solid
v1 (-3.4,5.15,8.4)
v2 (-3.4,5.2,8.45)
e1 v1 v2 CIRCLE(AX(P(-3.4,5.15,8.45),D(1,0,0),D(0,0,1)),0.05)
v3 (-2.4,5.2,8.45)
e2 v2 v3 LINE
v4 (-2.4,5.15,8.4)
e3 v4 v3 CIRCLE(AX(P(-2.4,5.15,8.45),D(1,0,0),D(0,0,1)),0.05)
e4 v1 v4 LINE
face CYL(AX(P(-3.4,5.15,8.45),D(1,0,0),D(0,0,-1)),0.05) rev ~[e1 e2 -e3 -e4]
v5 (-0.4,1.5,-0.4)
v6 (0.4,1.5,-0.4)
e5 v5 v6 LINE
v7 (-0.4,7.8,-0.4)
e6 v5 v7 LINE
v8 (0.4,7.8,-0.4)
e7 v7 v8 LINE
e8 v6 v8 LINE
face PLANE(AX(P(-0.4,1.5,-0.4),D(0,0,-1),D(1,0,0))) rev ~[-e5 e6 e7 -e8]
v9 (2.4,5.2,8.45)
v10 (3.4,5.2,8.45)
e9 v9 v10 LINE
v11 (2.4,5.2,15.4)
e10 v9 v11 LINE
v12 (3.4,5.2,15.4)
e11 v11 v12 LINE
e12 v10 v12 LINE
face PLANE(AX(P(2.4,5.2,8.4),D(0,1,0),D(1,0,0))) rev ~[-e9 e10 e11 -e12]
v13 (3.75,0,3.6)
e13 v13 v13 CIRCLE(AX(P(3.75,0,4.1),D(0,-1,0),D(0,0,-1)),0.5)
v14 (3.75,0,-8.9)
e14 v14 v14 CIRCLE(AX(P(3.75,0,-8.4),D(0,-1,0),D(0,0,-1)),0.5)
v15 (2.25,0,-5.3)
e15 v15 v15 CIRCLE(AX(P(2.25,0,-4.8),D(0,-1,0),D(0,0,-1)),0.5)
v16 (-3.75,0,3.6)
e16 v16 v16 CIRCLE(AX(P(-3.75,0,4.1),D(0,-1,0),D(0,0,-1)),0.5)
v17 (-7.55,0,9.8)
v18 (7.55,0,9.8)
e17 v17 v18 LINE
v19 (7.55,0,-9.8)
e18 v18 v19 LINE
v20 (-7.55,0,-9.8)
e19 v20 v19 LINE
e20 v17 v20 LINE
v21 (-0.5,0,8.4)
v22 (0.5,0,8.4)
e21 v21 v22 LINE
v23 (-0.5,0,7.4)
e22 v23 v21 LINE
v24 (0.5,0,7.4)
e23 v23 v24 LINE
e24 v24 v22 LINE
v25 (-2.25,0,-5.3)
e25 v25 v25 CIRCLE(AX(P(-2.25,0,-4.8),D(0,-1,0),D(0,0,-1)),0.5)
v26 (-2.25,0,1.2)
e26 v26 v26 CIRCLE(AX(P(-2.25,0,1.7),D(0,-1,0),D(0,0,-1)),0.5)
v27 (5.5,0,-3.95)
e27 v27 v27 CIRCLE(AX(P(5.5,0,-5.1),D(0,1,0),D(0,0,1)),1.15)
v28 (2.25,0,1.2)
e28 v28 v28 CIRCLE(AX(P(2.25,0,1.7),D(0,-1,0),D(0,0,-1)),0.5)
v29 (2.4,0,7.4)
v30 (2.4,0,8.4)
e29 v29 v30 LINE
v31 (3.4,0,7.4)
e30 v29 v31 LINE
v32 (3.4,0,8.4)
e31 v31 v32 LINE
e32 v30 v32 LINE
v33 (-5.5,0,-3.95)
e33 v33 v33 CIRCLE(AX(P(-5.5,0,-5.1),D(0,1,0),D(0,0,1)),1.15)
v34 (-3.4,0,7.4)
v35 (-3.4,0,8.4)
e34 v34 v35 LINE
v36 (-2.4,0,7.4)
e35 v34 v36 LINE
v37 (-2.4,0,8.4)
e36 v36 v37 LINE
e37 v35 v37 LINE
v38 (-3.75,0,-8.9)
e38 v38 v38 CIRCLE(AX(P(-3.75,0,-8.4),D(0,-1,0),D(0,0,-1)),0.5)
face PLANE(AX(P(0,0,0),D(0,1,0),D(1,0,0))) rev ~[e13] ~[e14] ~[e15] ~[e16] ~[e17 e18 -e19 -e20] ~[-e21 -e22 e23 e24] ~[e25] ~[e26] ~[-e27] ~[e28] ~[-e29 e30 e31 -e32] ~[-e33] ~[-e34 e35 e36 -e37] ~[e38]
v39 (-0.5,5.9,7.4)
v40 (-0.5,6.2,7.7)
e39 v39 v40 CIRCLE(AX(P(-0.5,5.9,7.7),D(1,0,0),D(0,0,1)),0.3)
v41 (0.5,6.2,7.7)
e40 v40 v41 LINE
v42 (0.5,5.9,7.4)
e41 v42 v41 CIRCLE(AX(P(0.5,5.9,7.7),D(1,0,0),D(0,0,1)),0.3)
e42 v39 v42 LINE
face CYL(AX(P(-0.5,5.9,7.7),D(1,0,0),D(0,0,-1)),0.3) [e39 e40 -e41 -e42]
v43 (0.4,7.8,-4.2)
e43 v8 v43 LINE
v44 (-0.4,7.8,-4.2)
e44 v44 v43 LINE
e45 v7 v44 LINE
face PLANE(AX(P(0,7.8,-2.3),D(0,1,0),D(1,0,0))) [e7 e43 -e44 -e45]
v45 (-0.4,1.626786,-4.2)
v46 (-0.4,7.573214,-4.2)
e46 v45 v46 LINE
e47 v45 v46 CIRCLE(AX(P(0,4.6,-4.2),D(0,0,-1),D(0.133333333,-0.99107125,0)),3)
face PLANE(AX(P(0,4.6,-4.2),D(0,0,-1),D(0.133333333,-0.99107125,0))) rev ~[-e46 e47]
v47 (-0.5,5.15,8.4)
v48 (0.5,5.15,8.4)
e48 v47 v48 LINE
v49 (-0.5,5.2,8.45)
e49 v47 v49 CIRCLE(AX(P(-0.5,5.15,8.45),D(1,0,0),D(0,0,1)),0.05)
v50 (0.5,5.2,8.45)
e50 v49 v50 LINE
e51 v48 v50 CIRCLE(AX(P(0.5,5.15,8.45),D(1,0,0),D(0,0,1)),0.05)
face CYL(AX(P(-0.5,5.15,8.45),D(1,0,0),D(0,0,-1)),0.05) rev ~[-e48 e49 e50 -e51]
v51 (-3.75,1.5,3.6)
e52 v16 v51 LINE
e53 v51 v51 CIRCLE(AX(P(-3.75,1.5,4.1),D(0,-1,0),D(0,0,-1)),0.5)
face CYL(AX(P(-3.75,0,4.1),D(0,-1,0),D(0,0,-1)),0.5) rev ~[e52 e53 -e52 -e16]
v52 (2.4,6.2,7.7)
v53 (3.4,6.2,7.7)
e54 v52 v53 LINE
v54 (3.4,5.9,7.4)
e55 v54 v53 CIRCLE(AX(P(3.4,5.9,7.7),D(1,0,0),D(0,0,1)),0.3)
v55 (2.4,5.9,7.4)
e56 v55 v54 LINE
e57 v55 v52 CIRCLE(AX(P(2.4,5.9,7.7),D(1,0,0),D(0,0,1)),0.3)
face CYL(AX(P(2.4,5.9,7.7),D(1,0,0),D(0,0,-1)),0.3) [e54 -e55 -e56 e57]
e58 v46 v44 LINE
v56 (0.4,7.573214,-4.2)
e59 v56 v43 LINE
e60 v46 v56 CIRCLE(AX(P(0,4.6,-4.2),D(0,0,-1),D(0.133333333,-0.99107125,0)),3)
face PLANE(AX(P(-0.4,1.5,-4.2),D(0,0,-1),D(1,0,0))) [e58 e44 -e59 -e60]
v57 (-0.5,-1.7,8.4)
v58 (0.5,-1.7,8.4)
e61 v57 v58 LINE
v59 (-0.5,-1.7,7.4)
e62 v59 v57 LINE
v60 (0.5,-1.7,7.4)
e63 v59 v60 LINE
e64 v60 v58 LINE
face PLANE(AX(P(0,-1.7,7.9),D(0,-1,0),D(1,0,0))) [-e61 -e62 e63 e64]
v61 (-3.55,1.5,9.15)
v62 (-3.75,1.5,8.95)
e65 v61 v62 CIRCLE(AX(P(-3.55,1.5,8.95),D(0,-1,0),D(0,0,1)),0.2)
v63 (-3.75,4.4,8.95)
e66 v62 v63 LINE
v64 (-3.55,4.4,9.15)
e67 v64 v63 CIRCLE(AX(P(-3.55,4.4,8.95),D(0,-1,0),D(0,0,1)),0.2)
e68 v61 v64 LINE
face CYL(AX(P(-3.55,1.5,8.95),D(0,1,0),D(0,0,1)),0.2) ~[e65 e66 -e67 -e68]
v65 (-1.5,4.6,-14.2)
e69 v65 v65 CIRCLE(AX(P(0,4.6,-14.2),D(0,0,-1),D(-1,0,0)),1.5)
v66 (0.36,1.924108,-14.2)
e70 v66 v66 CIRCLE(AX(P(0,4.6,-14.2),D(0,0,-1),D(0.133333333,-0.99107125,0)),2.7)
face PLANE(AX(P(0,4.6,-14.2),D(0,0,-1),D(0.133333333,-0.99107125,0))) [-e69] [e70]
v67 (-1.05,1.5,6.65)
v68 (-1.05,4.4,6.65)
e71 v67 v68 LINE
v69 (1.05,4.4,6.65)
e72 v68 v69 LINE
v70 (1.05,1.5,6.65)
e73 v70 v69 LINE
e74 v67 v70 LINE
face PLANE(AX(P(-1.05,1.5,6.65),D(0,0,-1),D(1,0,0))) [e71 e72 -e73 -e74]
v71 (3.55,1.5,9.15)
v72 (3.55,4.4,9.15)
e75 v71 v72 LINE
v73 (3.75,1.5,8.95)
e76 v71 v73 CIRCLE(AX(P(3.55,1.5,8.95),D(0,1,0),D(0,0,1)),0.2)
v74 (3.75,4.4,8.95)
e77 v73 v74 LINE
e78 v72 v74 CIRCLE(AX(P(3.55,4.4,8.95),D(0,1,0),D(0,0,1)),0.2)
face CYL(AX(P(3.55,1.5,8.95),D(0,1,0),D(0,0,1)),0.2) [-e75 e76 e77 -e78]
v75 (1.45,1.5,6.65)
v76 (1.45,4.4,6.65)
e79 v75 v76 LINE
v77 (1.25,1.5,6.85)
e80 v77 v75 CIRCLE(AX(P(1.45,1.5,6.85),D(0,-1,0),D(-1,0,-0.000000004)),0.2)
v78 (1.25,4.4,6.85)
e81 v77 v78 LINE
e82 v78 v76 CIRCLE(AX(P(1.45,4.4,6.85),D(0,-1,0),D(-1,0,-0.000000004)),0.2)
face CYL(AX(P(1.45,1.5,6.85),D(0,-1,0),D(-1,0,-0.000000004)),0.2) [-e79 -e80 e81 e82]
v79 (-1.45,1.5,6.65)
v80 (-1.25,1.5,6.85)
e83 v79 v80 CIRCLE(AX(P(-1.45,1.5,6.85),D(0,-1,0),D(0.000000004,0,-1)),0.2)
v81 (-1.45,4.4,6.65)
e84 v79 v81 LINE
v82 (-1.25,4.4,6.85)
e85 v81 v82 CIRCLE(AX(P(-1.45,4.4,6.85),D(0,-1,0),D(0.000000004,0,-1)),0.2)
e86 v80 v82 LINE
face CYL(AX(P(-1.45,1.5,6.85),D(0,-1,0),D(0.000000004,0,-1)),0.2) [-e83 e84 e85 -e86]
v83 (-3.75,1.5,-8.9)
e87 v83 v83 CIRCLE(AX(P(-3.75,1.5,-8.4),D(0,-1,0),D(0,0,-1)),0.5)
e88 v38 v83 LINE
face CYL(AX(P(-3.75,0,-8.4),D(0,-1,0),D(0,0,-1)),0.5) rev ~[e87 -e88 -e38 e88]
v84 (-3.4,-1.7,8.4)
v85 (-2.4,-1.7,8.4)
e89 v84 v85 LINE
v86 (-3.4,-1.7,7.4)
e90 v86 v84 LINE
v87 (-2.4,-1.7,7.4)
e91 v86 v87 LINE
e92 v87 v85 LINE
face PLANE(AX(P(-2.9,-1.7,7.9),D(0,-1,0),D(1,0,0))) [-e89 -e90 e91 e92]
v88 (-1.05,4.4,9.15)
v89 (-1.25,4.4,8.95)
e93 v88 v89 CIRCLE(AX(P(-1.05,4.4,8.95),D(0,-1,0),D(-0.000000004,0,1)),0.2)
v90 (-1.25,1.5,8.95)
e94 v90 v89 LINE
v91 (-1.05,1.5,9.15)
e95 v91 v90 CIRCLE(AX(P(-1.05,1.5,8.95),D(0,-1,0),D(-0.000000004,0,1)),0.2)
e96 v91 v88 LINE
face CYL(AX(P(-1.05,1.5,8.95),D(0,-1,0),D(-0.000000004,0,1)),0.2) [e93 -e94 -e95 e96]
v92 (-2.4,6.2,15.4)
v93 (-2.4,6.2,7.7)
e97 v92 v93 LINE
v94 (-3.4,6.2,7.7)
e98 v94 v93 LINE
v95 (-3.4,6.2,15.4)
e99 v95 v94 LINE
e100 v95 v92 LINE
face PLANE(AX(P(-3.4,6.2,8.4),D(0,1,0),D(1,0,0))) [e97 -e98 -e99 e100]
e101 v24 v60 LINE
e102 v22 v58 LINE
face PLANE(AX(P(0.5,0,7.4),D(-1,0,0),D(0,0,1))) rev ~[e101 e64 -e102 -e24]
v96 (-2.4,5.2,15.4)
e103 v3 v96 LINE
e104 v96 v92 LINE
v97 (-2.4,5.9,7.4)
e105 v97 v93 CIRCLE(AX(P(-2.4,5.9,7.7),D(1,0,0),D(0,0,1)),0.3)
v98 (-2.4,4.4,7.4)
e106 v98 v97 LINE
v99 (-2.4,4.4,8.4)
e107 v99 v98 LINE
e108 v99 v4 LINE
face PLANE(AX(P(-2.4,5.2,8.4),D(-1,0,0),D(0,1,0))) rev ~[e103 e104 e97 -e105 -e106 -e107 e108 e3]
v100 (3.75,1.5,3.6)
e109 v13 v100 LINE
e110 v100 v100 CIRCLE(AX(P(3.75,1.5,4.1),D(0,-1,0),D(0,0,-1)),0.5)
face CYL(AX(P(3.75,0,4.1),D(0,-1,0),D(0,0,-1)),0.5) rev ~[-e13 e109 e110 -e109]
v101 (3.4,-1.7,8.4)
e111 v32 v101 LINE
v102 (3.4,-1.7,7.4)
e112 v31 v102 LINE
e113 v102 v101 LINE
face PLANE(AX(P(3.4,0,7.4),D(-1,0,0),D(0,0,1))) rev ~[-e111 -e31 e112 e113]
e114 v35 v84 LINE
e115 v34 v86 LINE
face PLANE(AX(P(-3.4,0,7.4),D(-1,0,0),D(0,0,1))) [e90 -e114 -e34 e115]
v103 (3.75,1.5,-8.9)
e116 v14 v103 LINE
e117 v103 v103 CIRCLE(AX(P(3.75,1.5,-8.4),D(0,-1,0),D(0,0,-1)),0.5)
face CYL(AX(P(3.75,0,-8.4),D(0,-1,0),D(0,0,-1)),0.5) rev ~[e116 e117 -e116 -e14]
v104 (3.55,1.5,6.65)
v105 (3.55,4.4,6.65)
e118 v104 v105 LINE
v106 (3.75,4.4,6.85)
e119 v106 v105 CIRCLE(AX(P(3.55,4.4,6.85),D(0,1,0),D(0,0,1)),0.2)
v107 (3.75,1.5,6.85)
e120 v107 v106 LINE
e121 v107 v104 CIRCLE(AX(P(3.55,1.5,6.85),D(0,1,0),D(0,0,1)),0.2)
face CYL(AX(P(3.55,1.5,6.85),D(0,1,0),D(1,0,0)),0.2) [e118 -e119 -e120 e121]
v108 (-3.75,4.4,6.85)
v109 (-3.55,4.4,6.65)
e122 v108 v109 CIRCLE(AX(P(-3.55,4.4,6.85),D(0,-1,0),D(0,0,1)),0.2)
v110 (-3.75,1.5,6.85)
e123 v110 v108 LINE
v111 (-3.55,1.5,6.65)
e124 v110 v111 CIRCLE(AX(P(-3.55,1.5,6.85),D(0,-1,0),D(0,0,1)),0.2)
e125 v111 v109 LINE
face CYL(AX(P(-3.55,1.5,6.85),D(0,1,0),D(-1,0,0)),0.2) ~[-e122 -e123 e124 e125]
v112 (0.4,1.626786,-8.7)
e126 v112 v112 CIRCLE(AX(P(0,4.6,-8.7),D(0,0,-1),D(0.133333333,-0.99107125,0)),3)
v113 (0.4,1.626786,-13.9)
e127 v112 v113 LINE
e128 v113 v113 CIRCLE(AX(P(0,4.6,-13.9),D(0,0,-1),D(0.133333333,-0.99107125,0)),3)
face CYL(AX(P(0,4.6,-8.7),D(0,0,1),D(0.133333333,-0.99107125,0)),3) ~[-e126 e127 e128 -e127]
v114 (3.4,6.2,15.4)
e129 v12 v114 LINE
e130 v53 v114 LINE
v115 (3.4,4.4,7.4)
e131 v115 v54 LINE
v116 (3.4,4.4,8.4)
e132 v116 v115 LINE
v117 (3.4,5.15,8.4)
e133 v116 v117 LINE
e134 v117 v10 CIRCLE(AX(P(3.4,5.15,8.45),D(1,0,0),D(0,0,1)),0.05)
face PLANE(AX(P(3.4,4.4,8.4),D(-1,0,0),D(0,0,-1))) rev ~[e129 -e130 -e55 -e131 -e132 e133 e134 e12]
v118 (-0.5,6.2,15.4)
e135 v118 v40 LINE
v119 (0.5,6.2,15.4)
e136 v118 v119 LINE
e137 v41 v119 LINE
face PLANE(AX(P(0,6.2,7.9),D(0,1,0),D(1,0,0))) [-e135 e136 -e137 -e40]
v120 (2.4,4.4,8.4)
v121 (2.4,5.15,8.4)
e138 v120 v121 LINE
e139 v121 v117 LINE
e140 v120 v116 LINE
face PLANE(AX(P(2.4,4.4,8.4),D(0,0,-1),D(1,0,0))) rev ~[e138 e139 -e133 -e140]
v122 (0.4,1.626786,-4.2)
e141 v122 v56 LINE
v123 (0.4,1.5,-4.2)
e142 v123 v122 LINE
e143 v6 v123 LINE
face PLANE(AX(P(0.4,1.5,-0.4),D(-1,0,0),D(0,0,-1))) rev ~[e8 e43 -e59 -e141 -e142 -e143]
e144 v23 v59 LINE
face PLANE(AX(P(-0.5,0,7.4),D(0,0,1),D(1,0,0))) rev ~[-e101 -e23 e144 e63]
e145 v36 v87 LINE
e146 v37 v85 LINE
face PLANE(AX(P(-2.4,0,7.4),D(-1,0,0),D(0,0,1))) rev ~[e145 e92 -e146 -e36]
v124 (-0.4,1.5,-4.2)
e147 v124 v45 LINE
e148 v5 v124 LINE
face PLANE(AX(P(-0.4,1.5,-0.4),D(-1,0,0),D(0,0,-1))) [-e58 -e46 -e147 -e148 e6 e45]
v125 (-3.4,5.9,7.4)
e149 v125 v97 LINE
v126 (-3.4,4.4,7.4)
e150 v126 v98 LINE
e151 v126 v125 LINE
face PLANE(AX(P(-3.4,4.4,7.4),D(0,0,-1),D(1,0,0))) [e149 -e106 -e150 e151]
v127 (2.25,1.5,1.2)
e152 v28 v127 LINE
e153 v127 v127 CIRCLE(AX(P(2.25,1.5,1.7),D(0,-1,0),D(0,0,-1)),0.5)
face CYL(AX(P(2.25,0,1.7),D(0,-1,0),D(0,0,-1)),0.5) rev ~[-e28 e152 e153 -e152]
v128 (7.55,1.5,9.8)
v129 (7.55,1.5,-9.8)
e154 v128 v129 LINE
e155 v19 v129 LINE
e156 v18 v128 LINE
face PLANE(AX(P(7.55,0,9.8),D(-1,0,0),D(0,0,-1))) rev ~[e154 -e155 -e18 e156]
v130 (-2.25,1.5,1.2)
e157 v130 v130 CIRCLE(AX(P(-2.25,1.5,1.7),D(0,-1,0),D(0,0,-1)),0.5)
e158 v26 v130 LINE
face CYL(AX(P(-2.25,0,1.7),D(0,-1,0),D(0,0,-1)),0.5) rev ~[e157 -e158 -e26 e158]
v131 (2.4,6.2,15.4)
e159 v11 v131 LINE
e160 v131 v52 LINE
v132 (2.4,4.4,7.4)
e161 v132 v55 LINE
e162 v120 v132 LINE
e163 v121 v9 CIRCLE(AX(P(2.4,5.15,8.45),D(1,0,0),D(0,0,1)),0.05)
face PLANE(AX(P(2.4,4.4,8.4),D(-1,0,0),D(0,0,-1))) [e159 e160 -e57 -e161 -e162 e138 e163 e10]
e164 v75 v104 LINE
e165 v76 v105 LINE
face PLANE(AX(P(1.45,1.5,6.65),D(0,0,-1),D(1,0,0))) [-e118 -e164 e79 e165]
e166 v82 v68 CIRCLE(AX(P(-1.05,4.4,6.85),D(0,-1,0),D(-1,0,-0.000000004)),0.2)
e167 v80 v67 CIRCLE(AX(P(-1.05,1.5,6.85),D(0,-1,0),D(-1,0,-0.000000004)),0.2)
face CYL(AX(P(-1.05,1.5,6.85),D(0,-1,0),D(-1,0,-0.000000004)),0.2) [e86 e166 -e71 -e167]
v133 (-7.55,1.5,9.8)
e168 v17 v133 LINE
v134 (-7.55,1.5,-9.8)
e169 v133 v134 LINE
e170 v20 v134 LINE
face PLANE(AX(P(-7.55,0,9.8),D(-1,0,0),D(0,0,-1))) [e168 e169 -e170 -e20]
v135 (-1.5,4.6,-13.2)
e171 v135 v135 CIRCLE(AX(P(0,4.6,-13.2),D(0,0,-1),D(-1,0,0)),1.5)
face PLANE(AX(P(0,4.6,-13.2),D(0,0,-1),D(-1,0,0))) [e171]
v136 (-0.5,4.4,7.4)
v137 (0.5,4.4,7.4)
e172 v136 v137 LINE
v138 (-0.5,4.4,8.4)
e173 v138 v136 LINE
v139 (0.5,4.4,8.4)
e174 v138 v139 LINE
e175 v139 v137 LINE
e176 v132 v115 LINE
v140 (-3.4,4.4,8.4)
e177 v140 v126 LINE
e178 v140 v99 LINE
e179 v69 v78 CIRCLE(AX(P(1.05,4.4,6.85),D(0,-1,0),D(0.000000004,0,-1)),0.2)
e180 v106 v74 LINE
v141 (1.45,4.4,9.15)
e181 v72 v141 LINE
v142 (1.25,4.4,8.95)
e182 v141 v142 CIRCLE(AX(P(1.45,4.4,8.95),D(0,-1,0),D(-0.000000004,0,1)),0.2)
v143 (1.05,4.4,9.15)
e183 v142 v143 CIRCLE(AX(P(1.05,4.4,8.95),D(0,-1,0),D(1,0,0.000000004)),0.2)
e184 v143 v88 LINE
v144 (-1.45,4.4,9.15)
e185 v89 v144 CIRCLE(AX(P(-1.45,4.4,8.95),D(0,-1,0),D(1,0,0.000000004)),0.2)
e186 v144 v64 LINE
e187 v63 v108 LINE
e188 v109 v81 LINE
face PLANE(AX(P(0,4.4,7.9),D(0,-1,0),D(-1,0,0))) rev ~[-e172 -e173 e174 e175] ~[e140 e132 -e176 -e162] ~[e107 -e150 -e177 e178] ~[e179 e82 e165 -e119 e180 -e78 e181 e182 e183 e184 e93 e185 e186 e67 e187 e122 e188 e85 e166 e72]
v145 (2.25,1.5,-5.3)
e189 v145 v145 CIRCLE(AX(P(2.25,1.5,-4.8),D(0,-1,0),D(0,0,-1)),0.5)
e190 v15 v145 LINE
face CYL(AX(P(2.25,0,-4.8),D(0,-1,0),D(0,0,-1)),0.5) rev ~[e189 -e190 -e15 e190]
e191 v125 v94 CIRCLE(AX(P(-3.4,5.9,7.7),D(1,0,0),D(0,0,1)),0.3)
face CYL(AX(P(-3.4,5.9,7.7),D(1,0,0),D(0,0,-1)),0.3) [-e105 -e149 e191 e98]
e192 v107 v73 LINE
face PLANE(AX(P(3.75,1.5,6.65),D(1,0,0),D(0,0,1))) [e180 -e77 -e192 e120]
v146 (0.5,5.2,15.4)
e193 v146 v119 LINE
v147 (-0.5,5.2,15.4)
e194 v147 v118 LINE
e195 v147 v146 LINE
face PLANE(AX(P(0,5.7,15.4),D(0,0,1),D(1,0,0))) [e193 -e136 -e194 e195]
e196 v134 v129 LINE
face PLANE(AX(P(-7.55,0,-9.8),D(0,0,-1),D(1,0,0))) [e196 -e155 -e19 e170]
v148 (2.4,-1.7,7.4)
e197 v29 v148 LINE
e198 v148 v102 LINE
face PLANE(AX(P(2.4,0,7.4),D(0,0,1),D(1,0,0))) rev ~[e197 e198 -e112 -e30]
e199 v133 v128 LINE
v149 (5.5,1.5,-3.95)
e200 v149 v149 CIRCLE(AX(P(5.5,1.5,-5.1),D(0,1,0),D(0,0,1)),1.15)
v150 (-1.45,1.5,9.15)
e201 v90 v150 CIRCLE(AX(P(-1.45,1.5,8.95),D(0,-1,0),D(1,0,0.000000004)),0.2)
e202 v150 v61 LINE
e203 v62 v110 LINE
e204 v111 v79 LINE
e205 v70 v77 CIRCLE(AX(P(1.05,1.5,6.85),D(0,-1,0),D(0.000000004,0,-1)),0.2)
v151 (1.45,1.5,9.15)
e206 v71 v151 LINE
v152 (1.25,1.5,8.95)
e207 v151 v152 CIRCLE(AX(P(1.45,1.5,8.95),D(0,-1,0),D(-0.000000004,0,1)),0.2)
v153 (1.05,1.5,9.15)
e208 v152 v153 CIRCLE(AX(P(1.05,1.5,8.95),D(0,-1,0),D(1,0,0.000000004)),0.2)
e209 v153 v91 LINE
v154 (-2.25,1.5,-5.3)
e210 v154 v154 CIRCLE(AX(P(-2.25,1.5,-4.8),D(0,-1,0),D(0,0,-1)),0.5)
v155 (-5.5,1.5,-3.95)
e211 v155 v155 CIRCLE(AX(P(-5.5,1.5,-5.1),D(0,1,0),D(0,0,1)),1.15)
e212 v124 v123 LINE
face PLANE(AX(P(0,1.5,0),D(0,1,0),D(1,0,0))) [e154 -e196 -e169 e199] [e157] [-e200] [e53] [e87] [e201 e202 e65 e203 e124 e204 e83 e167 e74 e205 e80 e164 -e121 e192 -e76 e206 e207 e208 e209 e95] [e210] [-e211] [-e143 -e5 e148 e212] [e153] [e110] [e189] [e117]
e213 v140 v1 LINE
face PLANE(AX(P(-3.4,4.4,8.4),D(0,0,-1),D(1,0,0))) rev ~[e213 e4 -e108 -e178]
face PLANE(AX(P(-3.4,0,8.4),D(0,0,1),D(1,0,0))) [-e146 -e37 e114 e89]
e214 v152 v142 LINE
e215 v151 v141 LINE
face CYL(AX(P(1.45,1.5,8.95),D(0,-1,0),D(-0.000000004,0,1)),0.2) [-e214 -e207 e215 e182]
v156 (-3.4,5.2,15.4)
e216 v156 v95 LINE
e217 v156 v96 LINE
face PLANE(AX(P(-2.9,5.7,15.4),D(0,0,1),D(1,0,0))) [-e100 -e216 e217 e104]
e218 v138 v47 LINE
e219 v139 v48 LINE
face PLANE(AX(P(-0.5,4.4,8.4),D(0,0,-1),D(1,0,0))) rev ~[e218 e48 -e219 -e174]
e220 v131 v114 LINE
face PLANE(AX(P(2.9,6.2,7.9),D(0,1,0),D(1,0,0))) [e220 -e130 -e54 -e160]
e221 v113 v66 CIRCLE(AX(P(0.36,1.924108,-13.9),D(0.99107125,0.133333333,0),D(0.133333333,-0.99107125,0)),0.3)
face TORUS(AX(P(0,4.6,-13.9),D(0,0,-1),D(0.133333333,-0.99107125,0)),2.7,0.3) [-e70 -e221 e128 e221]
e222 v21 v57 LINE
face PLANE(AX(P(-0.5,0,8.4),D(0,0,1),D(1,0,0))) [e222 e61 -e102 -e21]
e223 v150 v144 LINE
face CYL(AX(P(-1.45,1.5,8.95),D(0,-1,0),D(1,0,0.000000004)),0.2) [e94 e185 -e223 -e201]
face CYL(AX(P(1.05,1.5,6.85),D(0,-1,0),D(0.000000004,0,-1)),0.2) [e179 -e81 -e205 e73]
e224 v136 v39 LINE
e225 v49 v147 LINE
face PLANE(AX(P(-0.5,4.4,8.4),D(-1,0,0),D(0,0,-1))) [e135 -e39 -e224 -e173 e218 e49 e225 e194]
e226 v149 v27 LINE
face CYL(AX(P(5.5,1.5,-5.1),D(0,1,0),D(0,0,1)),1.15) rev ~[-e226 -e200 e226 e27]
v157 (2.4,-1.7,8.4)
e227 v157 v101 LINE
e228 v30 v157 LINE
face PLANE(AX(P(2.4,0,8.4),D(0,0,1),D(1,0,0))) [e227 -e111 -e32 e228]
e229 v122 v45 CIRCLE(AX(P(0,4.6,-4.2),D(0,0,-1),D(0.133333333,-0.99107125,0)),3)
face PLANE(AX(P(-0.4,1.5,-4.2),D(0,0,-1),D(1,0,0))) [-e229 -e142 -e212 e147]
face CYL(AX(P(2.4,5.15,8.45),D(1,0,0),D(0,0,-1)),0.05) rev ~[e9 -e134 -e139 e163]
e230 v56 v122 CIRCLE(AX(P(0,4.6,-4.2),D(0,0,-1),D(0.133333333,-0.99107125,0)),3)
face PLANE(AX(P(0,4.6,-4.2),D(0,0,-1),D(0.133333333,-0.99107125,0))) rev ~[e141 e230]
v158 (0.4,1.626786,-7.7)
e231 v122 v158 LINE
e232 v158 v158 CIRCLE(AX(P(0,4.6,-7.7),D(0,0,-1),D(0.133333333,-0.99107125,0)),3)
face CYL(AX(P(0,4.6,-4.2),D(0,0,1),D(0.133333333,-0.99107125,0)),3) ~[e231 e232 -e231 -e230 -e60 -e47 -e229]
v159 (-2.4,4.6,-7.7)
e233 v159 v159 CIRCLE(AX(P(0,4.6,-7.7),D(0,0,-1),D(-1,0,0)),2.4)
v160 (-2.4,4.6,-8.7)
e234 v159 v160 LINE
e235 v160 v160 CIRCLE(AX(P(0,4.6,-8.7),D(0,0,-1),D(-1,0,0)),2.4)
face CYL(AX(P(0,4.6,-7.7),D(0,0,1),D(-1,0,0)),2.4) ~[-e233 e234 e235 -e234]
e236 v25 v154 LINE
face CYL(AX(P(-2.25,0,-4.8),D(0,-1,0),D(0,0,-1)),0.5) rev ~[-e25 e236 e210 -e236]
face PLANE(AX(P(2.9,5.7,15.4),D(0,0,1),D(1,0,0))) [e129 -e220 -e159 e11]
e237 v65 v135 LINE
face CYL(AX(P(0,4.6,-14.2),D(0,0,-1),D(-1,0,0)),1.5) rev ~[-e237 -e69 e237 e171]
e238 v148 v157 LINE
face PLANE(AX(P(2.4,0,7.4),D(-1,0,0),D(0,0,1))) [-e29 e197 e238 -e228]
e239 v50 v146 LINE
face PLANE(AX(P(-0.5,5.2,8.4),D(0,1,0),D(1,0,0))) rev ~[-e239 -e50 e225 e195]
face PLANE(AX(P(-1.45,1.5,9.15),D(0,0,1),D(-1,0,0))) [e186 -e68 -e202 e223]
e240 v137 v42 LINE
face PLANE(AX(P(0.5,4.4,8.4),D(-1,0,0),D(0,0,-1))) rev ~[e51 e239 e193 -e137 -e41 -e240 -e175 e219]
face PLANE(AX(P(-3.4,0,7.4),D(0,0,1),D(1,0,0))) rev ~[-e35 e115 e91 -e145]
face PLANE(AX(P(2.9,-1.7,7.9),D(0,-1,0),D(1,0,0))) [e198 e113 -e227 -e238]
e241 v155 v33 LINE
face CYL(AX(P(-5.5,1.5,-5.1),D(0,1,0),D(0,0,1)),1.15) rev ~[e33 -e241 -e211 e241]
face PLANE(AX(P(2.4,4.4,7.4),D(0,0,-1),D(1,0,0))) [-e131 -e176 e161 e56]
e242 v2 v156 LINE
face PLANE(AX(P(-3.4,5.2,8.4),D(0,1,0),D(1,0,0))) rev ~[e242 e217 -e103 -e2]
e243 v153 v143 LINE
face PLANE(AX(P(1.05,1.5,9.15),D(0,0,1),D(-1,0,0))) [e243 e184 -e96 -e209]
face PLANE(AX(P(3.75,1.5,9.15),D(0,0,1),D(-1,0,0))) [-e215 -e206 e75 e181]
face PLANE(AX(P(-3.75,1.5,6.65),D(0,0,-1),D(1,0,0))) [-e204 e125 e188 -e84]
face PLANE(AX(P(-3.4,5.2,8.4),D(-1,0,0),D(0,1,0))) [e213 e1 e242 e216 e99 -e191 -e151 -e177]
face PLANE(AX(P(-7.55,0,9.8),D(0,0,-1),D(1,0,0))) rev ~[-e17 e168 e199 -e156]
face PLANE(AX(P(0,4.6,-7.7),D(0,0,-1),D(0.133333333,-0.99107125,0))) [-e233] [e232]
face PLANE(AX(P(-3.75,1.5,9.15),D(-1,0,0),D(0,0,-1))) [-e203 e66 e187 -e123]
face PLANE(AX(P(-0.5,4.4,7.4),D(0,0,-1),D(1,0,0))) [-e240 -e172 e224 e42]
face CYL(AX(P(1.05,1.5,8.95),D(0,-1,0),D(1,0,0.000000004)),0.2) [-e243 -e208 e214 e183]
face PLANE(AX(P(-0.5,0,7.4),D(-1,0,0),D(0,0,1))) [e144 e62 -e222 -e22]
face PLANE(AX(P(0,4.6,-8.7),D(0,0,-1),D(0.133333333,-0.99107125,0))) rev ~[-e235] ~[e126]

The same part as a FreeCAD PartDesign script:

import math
import FreeCAD as App
import Part
import Sketcher

V = App.Vector


def edges_at(feature, points):
    """Names of the edges that pass closest to the given points."""
    edges = feature.Shape.Edges
    near = lambda p: min(range(len(edges)), key=lambda i: edges[i].distToShape(Part.Vertex(*p))[0])
    return sorted({f"Edge{near(p) + 1}" for p in points})


def add_polygon(sketch, points):
    """Adds a closed chain of lines whose ends are joined by coincident constraints."""
    first, n = sketch.GeometryCount, len(points)
    for a, b in zip(points, points[1:] + points[:1]):
        sketch.addGeometry(Part.LineSegment(App.Vector(*a, 0), App.Vector(*b, 0)), False)
    for i in range(n):
        sketch.addConstraint(Sketcher.Constraint("Coincident", first + i, 2, first + (i + 1) % n, 1))

doc = App.newDocument("Part")
body = doc.addObject("PartDesign::Body", "Body")

sketch1 = body.newObject("Sketcher::SketchObject", "Sketch")
sketch1.AttachmentSupport = (doc.getObject("XZ_Plane"), [""])
sketch1.MapMode = "FlatFace"
add_polygon(sketch1, [(-7.55, -9.8), (-7.55, 9.8), (7.55, 9.8), (7.55, -9.8)])
sketch1.addConstraint(Sketcher.Constraint("Vertical", 0))
sketch1.addConstraint(Sketcher.Constraint("Horizontal", 1))
sketch1.addConstraint(Sketcher.Constraint("Vertical", 2))
sketch1.addConstraint(Sketcher.Constraint("Horizontal", 3))
sketch1.addConstraint(Sketcher.Constraint("Symmetric", 0, 2, 2, 2, -1, 1))
sketch1.addConstraint(Sketcher.Constraint("DistanceX", 1, 1, 1, 2, 15.1))
sketch1.addConstraint(Sketcher.Constraint("DistanceY", 0, 1, 0, 2, 19.6))
pad1 = body.newObject("PartDesign::Pad", "Pad")
pad1.Profile = sketch1
pad1.Length = 1.5
pad1.Reversed = True

sketch2 = body.newObject("Sketcher::SketchObject", "Sketch001")
sketch2.AttachmentSupport = (doc.getObject("XZ_Plane"), [""])
sketch2.MapMode = "FlatFace"
add_polygon(sketch2, [(-0.5, 8.4), (-0.5, 7.4), (0.5, 7.4), (0.5, 8.4)])
add_polygon(sketch2, [(2.4, 8.4), (2.4, 7.4), (3.4, 7.4), (3.4, 8.4)])
add_polygon(sketch2, [(-3.4, 8.4), (-3.4, 7.4), (-2.4, 7.4), (-2.4, 8.4)])
sketch2.addConstraint(Sketcher.Constraint("Vertical", 0))
sketch2.addConstraint(Sketcher.Constraint("Horizontal", 1))
sketch2.addConstraint(Sketcher.Constraint("Vertical", 2))
sketch2.addConstraint(Sketcher.Constraint("Horizontal", 3))
sketch2.addConstraint(Sketcher.Constraint("Vertical", 4))
sketch2.addConstraint(Sketcher.Constraint("Horizontal", 5))
sketch2.addConstraint(Sketcher.Constraint("Vertical", 6))
sketch2.addConstraint(Sketcher.Constraint("Horizontal", 7))
sketch2.addConstraint(Sketcher.Constraint("Vertical", 8))
sketch2.addConstraint(Sketcher.Constraint("Horizontal", 9))
sketch2.addConstraint(Sketcher.Constraint("Vertical", 10))
sketch2.addConstraint(Sketcher.Constraint("Horizontal", 11))
sketch2.addConstraint(Sketcher.Constraint("Symmetric", 5, 2, 8, 2, -2))
sketch2.addConstraint(Sketcher.Constraint("Symmetric", 7, 2, 10, 2, -2))
sketch2.addConstraint(Sketcher.Constraint("Horizontal", 1, 2, 4, 2))
sketch2.addConstraint(Sketcher.Constraint("Horizontal", 3, 2, 6, 2))
sketch2.addConstraint(Sketcher.Constraint("Equal", 3, 5))
sketch2.addConstraint(Sketcher.Constraint("Equal", 11, 0))
sketch2.addConstraint(Sketcher.Constraint("DistanceX", 1, 1, 1, 2, 1.0))
sketch2.addConstraint(Sketcher.Constraint("DistanceX", 0, 2, -1, 1, 0.5))
sketch2.addConstraint(Sketcher.Constraint("DistanceY", -1, 1, 0, 2, 7.4))
sketch2.addConstraint(Sketcher.Constraint("DistanceX", -1, 1, 4, 2, 2.4))
pad2 = body.newObject("PartDesign::Pad", "Pad001")
pad2.Profile = sketch2
pad2.Length = 1.7

sketch3 = body.newObject("Sketcher::SketchObject", "Sketch002")
sketch3.AttachmentSupport = (doc.getObject("XZ_Plane"), [""])
sketch3.MapMode = "FlatFace"
sketch3.AttachmentOffset = App.Placement(V(0, 0, -1.5), App.Rotation())
sketch3.addGeometry(Part.LineSegment(V(-3.75, 6.65, 0), V(-3.75, 9.15, 0)), False)
sketch3.addGeometry(Part.LineSegment(V(-3.75, 9.15, 0), V(-1.45, 9.15, 0)), False)
sketch3.addGeometry(Part.ArcOfCircle(Part.Circle(V(-1.45, 8.95, 0), V(0, 0, 1), 0.2), math.radians(0), math.radians(90)), False)
sketch3.addGeometry(Part.ArcOfCircle(Part.Circle(V(-1.05, 8.95, 0), V(0, 0, 1), 0.2), math.radians(90), math.radians(180)), False)
sketch3.addGeometry(Part.LineSegment(V(-1.05, 9.15, 0), V(1.05, 9.15, 0)), False)
sketch3.addGeometry(Part.ArcOfCircle(Part.Circle(V(1.05, 8.95, 0), V(0, 0, 1), 0.2), math.radians(0), math.radians(90)), False)
sketch3.addGeometry(Part.ArcOfCircle(Part.Circle(V(1.45, 8.95, 0), V(0, 0, 1), 0.2), math.radians(90), math.radians(180)), False)
sketch3.addGeometry(Part.LineSegment(V(1.45, 9.15, 0), V(3.75, 9.15, 0)), False)
sketch3.addGeometry(Part.LineSegment(V(3.75, 9.15, 0), V(3.75, 6.65, 0)), False)
sketch3.addGeometry(Part.LineSegment(V(3.75, 6.65, 0), V(1.45, 6.65, 0)), False)
sketch3.addGeometry(Part.ArcOfCircle(Part.Circle(V(1.45, 6.85, 0), V(0, 0, 1), 0.2), math.radians(-180), math.radians(-90)), False)
sketch3.addGeometry(Part.ArcOfCircle(Part.Circle(V(1.05, 6.85, 0), V(0, 0, 1), 0.2), math.radians(-90), math.radians(0)), False)
sketch3.addGeometry(Part.LineSegment(V(1.05, 6.65, 0), V(-1.05, 6.65, 0)), False)
sketch3.addGeometry(Part.ArcOfCircle(Part.Circle(V(-1.05, 6.85, 0), V(0, 0, 1), 0.2), math.radians(-180), math.radians(-90)), False)
sketch3.addGeometry(Part.ArcOfCircle(Part.Circle(V(-1.45, 6.85, 0), V(0, 0, 1), 0.2), math.radians(-90), math.radians(0)), False)
sketch3.addGeometry(Part.LineSegment(V(-1.45, 6.65, 0), V(-3.75, 6.65, 0)), False)
sketch3.addConstraint(Sketcher.Constraint("Coincident", 0, 2, 1, 1))
sketch3.addConstraint(Sketcher.Constraint("Tangent", 1, 2, 2, 2))
sketch3.addConstraint(Sketcher.Constraint("Tangent", 2, 1, 3, 2))
sketch3.addConstraint(Sketcher.Constraint("Tangent", 3, 1, 4, 1))
sketch3.addConstraint(Sketcher.Constraint("Tangent", 4, 2, 5, 2))
sketch3.addConstraint(Sketcher.Constraint("Tangent", 5, 1, 6, 2))
sketch3.addConstraint(Sketcher.Constraint("Tangent", 6, 1, 7, 1))
sketch3.addConstraint(Sketcher.Constraint("Coincident", 7, 2, 8, 1))
sketch3.addConstraint(Sketcher.Constraint("Coincident", 8, 2, 9, 1))
sketch3.addConstraint(Sketcher.Constraint("Tangent", 9, 2, 10, 2))
sketch3.addConstraint(Sketcher.Constraint("Tangent", 10, 1, 11, 2))
sketch3.addConstraint(Sketcher.Constraint("Tangent", 11, 1, 12, 1))
sketch3.addConstraint(Sketcher.Constraint("Tangent", 12, 2, 13, 2))
sketch3.addConstraint(Sketcher.Constraint("Tangent", 13, 1, 14, 2))
sketch3.addConstraint(Sketcher.Constraint("Tangent", 14, 1, 15, 1))
sketch3.addConstraint(Sketcher.Constraint("Coincident", 15, 2, 0, 1))
sketch3.addConstraint(Sketcher.Constraint("Vertical", 0))
sketch3.addConstraint(Sketcher.Constraint("Horizontal", 1))
sketch3.addConstraint(Sketcher.Constraint("Horizontal", 4))
sketch3.addConstraint(Sketcher.Constraint("Horizontal", 7))
sketch3.addConstraint(Sketcher.Constraint("Vertical", 8))
sketch3.addConstraint(Sketcher.Constraint("Horizontal", 9))
sketch3.addConstraint(Sketcher.Constraint("Horizontal", 12))
sketch3.addConstraint(Sketcher.Constraint("Horizontal", 15))
sketch3.addConstraint(Sketcher.Constraint("Equal", 2, 3))
sketch3.addConstraint(Sketcher.Constraint("Equal", 3, 5))
sketch3.addConstraint(Sketcher.Constraint("Equal", 5, 6))
sketch3.addConstraint(Sketcher.Constraint("Equal", 6, 10))
sketch3.addConstraint(Sketcher.Constraint("Equal", 10, 11))
sketch3.addConstraint(Sketcher.Constraint("Equal", 11, 13))
sketch3.addConstraint(Sketcher.Constraint("Equal", 13, 14))
sketch3.addConstraint(Sketcher.Constraint("Symmetric", 2, 3, 6, 3, -2))
sketch3.addConstraint(Sketcher.Constraint("Symmetric", 10, 3, 14, 3, -2))
sketch3.addConstraint(Sketcher.Constraint("Horizontal", 2, 3, 3, 3))
sketch3.addConstraint(Sketcher.Constraint("Horizontal", 10, 3, 11, 3))
sketch3.addConstraint(Sketcher.Constraint("Vertical", 6, 3, 10, 3))
sketch3.addConstraint(Sketcher.Constraint("Equal", 1, 7))
sketch3.addConstraint(Sketcher.Constraint("Radius", 2, 0.2))
sketch3.addConstraint(Sketcher.Constraint("DistanceX", 1, 1, 1, 2, 2.3))
sketch3.addConstraint(Sketcher.Constraint("DistanceX", 4, 1, 4, 2, 2.1))
sketch3.addConstraint(Sketcher.Constraint("DistanceY", 0, 1, 0, 2, 2.5))
sketch3.addConstraint(Sketcher.Constraint("DistanceY", -1, 1, 2, 3, 8.95))
pad3 = body.newObject("PartDesign::Pad", "Pad002")
pad3.Profile = sketch3
pad3.Length = 2.9
pad3.Reversed = True

sketch4 = body.newObject("Sketcher::SketchObject", "Sketch003")
sketch4.AttachmentSupport = (doc.getObject("XZ_Plane"), [""])
sketch4.MapMode = "FlatFace"
sketch4.AttachmentOffset = App.Placement(V(0, 0, -4.4), App.Rotation())
add_polygon(sketch4, [(-3.4, 7.4), (-3.4, 8.4), (-2.4, 8.4), (-2.4, 7.4)])
add_polygon(sketch4, [(-0.5, 7.4), (-0.5, 8.4), (0.5, 8.4), (0.5, 7.4)])
add_polygon(sketch4, [(2.4, 7.4), (2.4, 8.4), (3.4, 8.4), (3.4, 7.4)])
sketch4.addConstraint(Sketcher.Constraint("Vertical", 0))
sketch4.addConstraint(Sketcher.Constraint("Horizontal", 1))
sketch4.addConstraint(Sketcher.Constraint("Vertical", 2))
sketch4.addConstraint(Sketcher.Constraint("Horizontal", 3))
sketch4.addConstraint(Sketcher.Constraint("Vertical", 4))
sketch4.addConstraint(Sketcher.Constraint("Horizontal", 5))
sketch4.addConstraint(Sketcher.Constraint("Vertical", 6))
sketch4.addConstraint(Sketcher.Constraint("Horizontal", 7))
sketch4.addConstraint(Sketcher.Constraint("Vertical", 8))
sketch4.addConstraint(Sketcher.Constraint("Horizontal", 9))
sketch4.addConstraint(Sketcher.Constraint("Vertical", 10))
sketch4.addConstraint(Sketcher.Constraint("Horizontal", 11))
sketch4.addConstraint(Sketcher.Constraint("Symmetric", 1, 2, 8, 2, -2))
sketch4.addConstraint(Sketcher.Constraint("Symmetric", 3, 2, 10, 2, -2))
sketch4.addConstraint(Sketcher.Constraint("Horizontal", 1, 2, 4, 2))
sketch4.addConstraint(Sketcher.Constraint("Horizontal", 3, 2, 6, 2))
sketch4.addConstraint(Sketcher.Constraint("Equal", 3, 5))
sketch4.addConstraint(Sketcher.Constraint("Equal", 11, 0))
sketch4.addConstraint(Sketcher.Constraint("DistanceX", 1, 1, 1, 2, 1.0))
sketch4.addConstraint(Sketcher.Constraint("DistanceX", 0, 2, -1, 1, 3.4))
sketch4.addConstraint(Sketcher.Constraint("DistanceY", -1, 1, 0, 2, 8.4))
sketch4.addConstraint(Sketcher.Constraint("DistanceX", 4, 2, -1, 1, 0.5))
pad4 = body.newObject("PartDesign::Pad", "Pad003")
pad4.Profile = sketch4
pad4.Length = 1.8
pad4.Reversed = True

sketch5 = body.newObject("Sketcher::SketchObject", "Sketch004")
sketch5.AttachmentSupport = (doc.getObject("XY_Plane"), [""])
sketch5.MapMode = "FlatFace"
sketch5.AttachmentOffset = App.Placement(V(0, 0, 8.4), App.Rotation())
add_polygon(sketch5, [(-3.4, 6.2), (-3.4, 5.2), (-2.4, 5.2), (-2.4, 6.2)])
add_polygon(sketch5, [(-0.5, 6.2), (-0.5, 5.2), (0.5, 5.2), (0.5, 6.2)])
add_polygon(sketch5, [(2.4, 6.2), (2.4, 5.2), (3.4, 5.2), (3.4, 6.2)])
sketch5.addConstraint(Sketcher.Constraint("Vertical", 0))
sketch5.addConstraint(Sketcher.Constraint("Horizontal", 1))
sketch5.addConstraint(Sketcher.Constraint("Vertical", 2))
sketch5.addConstraint(Sketcher.Constraint("Horizontal", 3))
sketch5.addConstraint(Sketcher.Constraint("Vertical", 4))
sketch5.addConstraint(Sketcher.Constraint("Horizontal", 5))
sketch5.addConstraint(Sketcher.Constraint("Vertical", 6))
sketch5.addConstraint(Sketcher.Constraint("Horizontal", 7))
sketch5.addConstraint(Sketcher.Constraint("Vertical", 8))
sketch5.addConstraint(Sketcher.Constraint("Horizontal", 9))
sketch5.addConstraint(Sketcher.Constraint("Vertical", 10))
sketch5.addConstraint(Sketcher.Constraint("Horizontal", 11))
sketch5.addConstraint(Sketcher.Constraint("Symmetric", 1, 2, 8, 2, -2))
sketch5.addConstraint(Sketcher.Constraint("Symmetric", 3, 2, 10, 2, -2))
sketch5.addConstraint(Sketcher.Constraint("Horizontal", 1, 2, 4, 2))
sketch5.addConstraint(Sketcher.Constraint("Horizontal", 3, 2, 6, 2))
sketch5.addConstraint(Sketcher.Constraint("Equal", 3, 5))
sketch5.addConstraint(Sketcher.Constraint("Equal", 11, 0))
sketch5.addConstraint(Sketcher.Constraint("DistanceX", 1, 1, 1, 2, 1.0))
sketch5.addConstraint(Sketcher.Constraint("DistanceX", 0, 2, -1, 1, 3.4))
sketch5.addConstraint(Sketcher.Constraint("DistanceY", -1, 1, 0, 2, 5.2))
sketch5.addConstraint(Sketcher.Constraint("DistanceX", 4, 2, -1, 1, 0.5))
pad5 = body.newObject("PartDesign::Pad", "Pad004")
pad5.Profile = sketch5
pad5.Length = 7

sketch6 = body.newObject("Sketcher::SketchObject", "Sketch005")
sketch6.AttachmentSupport = (doc.getObject("XZ_Plane"), [""])
sketch6.MapMode = "FlatFace"
sketch6.AttachmentOffset = App.Placement(V(0, 0, -1.5), App.Rotation())
add_polygon(sketch6, [(-0.4, -4.2), (-0.4, -0.4), (0.4, -0.4), (0.4, -4.2)])
sketch6.addConstraint(Sketcher.Constraint("Vertical", 0))
sketch6.addConstraint(Sketcher.Constraint("Horizontal", 1))
sketch6.addConstraint(Sketcher.Constraint("Vertical", 2))
sketch6.addConstraint(Sketcher.Constraint("Horizontal", 3))
sketch6.addConstraint(Sketcher.Constraint("DistanceX", 1, 1, 1, 2, 0.8))
sketch6.addConstraint(Sketcher.Constraint("DistanceY", 0, 1, 0, 2, 3.8))
sketch6.addConstraint(Sketcher.Constraint("DistanceX", 0, 2, -1, 1, 0.4))
sketch6.addConstraint(Sketcher.Constraint("DistanceY", 0, 2, -1, 1, 0.4))
pad6 = body.newObject("PartDesign::Pad", "Pad005")
pad6.Profile = sketch6
pad6.Length = 6.3
pad6.Reversed = True

sketch7 = body.newObject("Sketcher::SketchObject", "Sketch006")
sketch7.AttachmentSupport = (doc.getObject("XY_Plane"), [""])
sketch7.MapMode = "FlatFace"
sketch7.AttachmentOffset = App.Placement(V(0, 0, -4.2), App.Rotation())
sketch7.addGeometry(Part.Circle(V(0, 4.6, 0), V(0, 0, 1), 3), False)
sketch7.addConstraint(Sketcher.Constraint("PointOnObject", 0, 3, -2))
sketch7.addConstraint(Sketcher.Constraint("Diameter", 0, 6.0))
sketch7.addConstraint(Sketcher.Constraint("DistanceY", -1, 1, 0, 3, 4.6))
pad7 = body.newObject("PartDesign::Pad", "Pad006")
pad7.Profile = sketch7
pad7.Length = 3.5
pad7.Reversed = True

sketch8 = body.newObject("Sketcher::SketchObject", "Sketch007")
sketch8.AttachmentSupport = (doc.getObject("XY_Plane"), [""])
sketch8.MapMode = "FlatFace"
sketch8.AttachmentOffset = App.Placement(V(0, 0, -7.7), App.Rotation())
sketch8.addGeometry(Part.Circle(V(0, 4.6, 0), V(0, 0, 1), 2.4), False)
sketch8.addConstraint(Sketcher.Constraint("PointOnObject", 0, 3, -2))
sketch8.addConstraint(Sketcher.Constraint("Diameter", 0, 4.8))
sketch8.addConstraint(Sketcher.Constraint("DistanceY", -1, 1, 0, 3, 4.6))
pad8 = body.newObject("PartDesign::Pad", "Pad007")
pad8.Profile = sketch8
pad8.Length = 1
pad8.Reversed = True

sketch9 = body.newObject("Sketcher::SketchObject", "Sketch008")
sketch9.AttachmentSupport = (doc.getObject("XY_Plane"), [""])
sketch9.MapMode = "FlatFace"
sketch9.AttachmentOffset = App.Placement(V(0, 0, -8.7), App.Rotation())
sketch9.addGeometry(Part.Circle(V(0, 4.6, 0), V(0, 0, 1), 3), False)
sketch9.addConstraint(Sketcher.Constraint("PointOnObject", 0, 3, -2))
sketch9.addConstraint(Sketcher.Constraint("Diameter", 0, 6.0))
sketch9.addConstraint(Sketcher.Constraint("DistanceY", -1, 1, 0, 3, 4.6))
pad9 = body.newObject("PartDesign::Pad", "Pad008")
pad9.Profile = sketch9
pad9.Length = 5.5
pad9.Reversed = True
doc.recompute()

fillet = body.newObject("PartDesign::Fillet", "Fillet")
fillet.Base = (pad9, edges_at(pad9, [(-0.4, 7.573, -14.2)]))
fillet.Radius = 0.3

sketch10 = body.newObject("Sketcher::SketchObject", "Sketch009")
sketch10.AttachmentSupport = (doc.getObject("XY_Plane"), [""])
sketch10.MapMode = "FlatFace"
sketch10.AttachmentOffset = App.Placement(V(0, 0, -14.2), App.Rotation())
sketch10.addGeometry(Part.Circle(V(0, 4.6, 0), V(0, 0, 1), 1.5), False)
sketch10.addConstraint(Sketcher.Constraint("PointOnObject", 0, 3, -2))
sketch10.addConstraint(Sketcher.Constraint("Diameter", 0, 3.0))
sketch10.addConstraint(Sketcher.Constraint("DistanceY", -1, 1, 0, 3, 4.6))
pocket1 = body.newObject("PartDesign::Pocket", "Pocket")
pocket1.Profile = sketch10
pocket1.Length = 1
pocket1.Reversed = True

sketch11 = body.newObject("Sketcher::SketchObject", "Sketch010")
sketch11.AttachmentSupport = (doc.getObject("XZ_Plane"), [""])
sketch11.MapMode = "FlatFace"
sketch11.AttachmentOffset = App.Placement(V(0, 0, -1.5), App.Rotation())
sketch11.addGeometry(Part.Circle(V(-5.5, -5.1, 0), V(0, 0, 1), 1.15), False)
sketch11.addGeometry(Part.Circle(V(5.5, -5.1, 0), V(0, 0, 1), 1.15), False)
sketch11.addConstraint(Sketcher.Constraint("Equal", 0, 1))
sketch11.addConstraint(Sketcher.Constraint("Symmetric", 0, 3, 1, 3, -2))
sketch11.addConstraint(Sketcher.Constraint("Diameter", 0, 2.3))
sketch11.addConstraint(Sketcher.Constraint("DistanceX", 0, 3, 1, 3, 11.0))
sketch11.addConstraint(Sketcher.Constraint("DistanceY", 0, 3, -1, 1, 5.1))
pocket2 = body.newObject("PartDesign::Pocket", "Pocket001")
pocket2.Profile = sketch11
pocket2.Type = "ThroughAll"
pocket2.Reversed = True

sketch12 = body.newObject("Sketcher::SketchObject", "Sketch011")
sketch12.AttachmentSupport = (doc.getObject("XZ_Plane"), [""])
sketch12.MapMode = "FlatFace"
sketch12.addGeometry(Part.Circle(V(-2.25, -4.8, 0), V(0, 0, 1), 0.5), False)
sketch12.addConstraint(Sketcher.Constraint("Diameter", 0, 1.0))
sketch12.addConstraint(Sketcher.Constraint("DistanceY", 0, 3, -1, 1, 4.8))
sketch12.addConstraint(Sketcher.Constraint("DistanceX", 0, 3, -1, 1, 2.25))
pocket3 = body.newObject("PartDesign::Pocket", "Pocket002")
pocket3.Profile = sketch12
pocket3.Type = "UpToFirst"

sketch13 = body.newObject("Sketcher::SketchObject", "Sketch012")
sketch13.AttachmentSupport = (doc.getObject("XZ_Plane"), [""])
sketch13.MapMode = "FlatFace"
sketch13.addGeometry(Part.Circle(V(2.25, -4.8, 0), V(0, 0, 1), 0.5), False)
sketch13.addConstraint(Sketcher.Constraint("Diameter", 0, 1.0))
sketch13.addConstraint(Sketcher.Constraint("DistanceY", 0, 3, -1, 1, 4.8))
sketch13.addConstraint(Sketcher.Constraint("DistanceX", -1, 1, 0, 3, 2.25))
pocket4 = body.newObject("PartDesign::Pocket", "Pocket003")
pocket4.Profile = sketch13
pocket4.Type = "UpToFirst"

sketch14 = body.newObject("Sketcher::SketchObject", "Sketch013")
sketch14.AttachmentSupport = (doc.getObject("XZ_Plane"), [""])
sketch14.MapMode = "FlatFace"
sketch14.addGeometry(Part.Circle(V(2.25, 1.7, 0), V(0, 0, 1), 0.5), False)
sketch14.addConstraint(Sketcher.Constraint("Diameter", 0, 1.0))
sketch14.addConstraint(Sketcher.Constraint("DistanceY", -1, 1, 0, 3, 1.7))
sketch14.addConstraint(Sketcher.Constraint("DistanceX", -1, 1, 0, 3, 2.25))
pocket5 = body.newObject("PartDesign::Pocket", "Pocket004")
pocket5.Profile = sketch14
pocket5.Type = "UpToFirst"

sketch15 = body.newObject("Sketcher::SketchObject", "Sketch014")
sketch15.AttachmentSupport = (doc.getObject("XZ_Plane"), [""])
sketch15.MapMode = "FlatFace"
sketch15.addGeometry(Part.Circle(V(-2.25, 1.7, 0), V(0, 0, 1), 0.5), False)
sketch15.addConstraint(Sketcher.Constraint("Diameter", 0, 1.0))
sketch15.addConstraint(Sketcher.Constraint("DistanceY", -1, 1, 0, 3, 1.7))
sketch15.addConstraint(Sketcher.Constraint("DistanceX", 0, 3, -1, 1, 2.25))
pocket6 = body.newObject("PartDesign::Pocket", "Pocket005")
pocket6.Profile = sketch15
pocket6.Type = "UpToFirst"

sketch16 = body.newObject("Sketcher::SketchObject", "Sketch015")
sketch16.AttachmentSupport = (doc.getObject("XZ_Plane"), [""])
sketch16.MapMode = "FlatFace"
sketch16.addGeometry(Part.Circle(V(3.75, 4.1, 0), V(0, 0, 1), 0.5), False)
sketch16.addConstraint(Sketcher.Constraint("Diameter", 0, 1.0))
sketch16.addConstraint(Sketcher.Constraint("DistanceY", -1, 1, 0, 3, 4.1))
sketch16.addConstraint(Sketcher.Constraint("DistanceX", -1, 1, 0, 3, 3.75))
pocket7 = body.newObject("PartDesign::Pocket", "Pocket006")
pocket7.Profile = sketch16
pocket7.Type = "UpToFirst"

sketch17 = body.newObject("Sketcher::SketchObject", "Sketch016")
sketch17.AttachmentSupport = (doc.getObject("XZ_Plane"), [""])
sketch17.MapMode = "FlatFace"
sketch17.addGeometry(Part.Circle(V(-3.75, 4.1, 0), V(0, 0, 1), 0.5), False)
sketch17.addConstraint(Sketcher.Constraint("Diameter", 0, 1.0))
sketch17.addConstraint(Sketcher.Constraint("DistanceY", -1, 1, 0, 3, 4.1))
sketch17.addConstraint(Sketcher.Constraint("DistanceX", 0, 3, -1, 1, 3.75))
pocket8 = body.newObject("PartDesign::Pocket", "Pocket007")
pocket8.Profile = sketch17
pocket8.Type = "UpToFirst"

sketch18 = body.newObject("Sketcher::SketchObject", "Sketch017")
sketch18.AttachmentSupport = (doc.getObject("XZ_Plane"), [""])
sketch18.MapMode = "FlatFace"
sketch18.addGeometry(Part.Circle(V(-3.75, -8.4, 0), V(0, 0, 1), 0.5), False)
sketch18.addConstraint(Sketcher.Constraint("Diameter", 0, 1.0))
sketch18.addConstraint(Sketcher.Constraint("DistanceY", 0, 3, -1, 1, 8.4))
sketch18.addConstraint(Sketcher.Constraint("DistanceX", 0, 3, -1, 1, 3.75))
pocket9 = body.newObject("PartDesign::Pocket", "Pocket008")
pocket9.Profile = sketch18
pocket9.Type = "UpToFirst"

sketch19 = body.newObject("Sketcher::SketchObject", "Sketch018")
sketch19.AttachmentSupport = (doc.getObject("XZ_Plane"), [""])
sketch19.MapMode = "FlatFace"
sketch19.addGeometry(Part.Circle(V(3.75, -8.4, 0), V(0, 0, 1), 0.5), False)
sketch19.addConstraint(Sketcher.Constraint("Diameter", 0, 1.0))
sketch19.addConstraint(Sketcher.Constraint("DistanceY", 0, 3, -1, 1, 8.4))
sketch19.addConstraint(Sketcher.Constraint("DistanceX", -1, 1, 0, 3, 3.75))
pocket10 = body.newObject("PartDesign::Pocket", "Pocket009")
pocket10.Profile = sketch19
pocket10.Type = "UpToFirst"
doc.recompute()

fillet2 = body.newObject("PartDesign::Fillet", "Fillet001")
fillet2.Base = (pocket10, edges_at(pocket10, [
    (-3.75, 2.95, 9.15),
    (3.75, 2.95, 9.15),
    (3.75, 2.95, 6.65),
    (-3.75, 2.95, 6.65),
]))
fillet2.Radius = 0.2
doc.recompute()

fillet3 = body.newObject("PartDesign::Fillet", "Fillet002")
fillet3.Base = (fillet2, edges_at(fillet2, [(-2.9, 5.2, 8.4), (0, 5.2, 8.4), (2.9, 5.2, 8.4)]))
fillet3.Radius = 0.05
doc.recompute()

fillet4 = body.newObject("PartDesign::Fillet", "Fillet003")
fillet4.Base = (fillet3, edges_at(fillet3, [(-2.9, 6.2, 7.4), (0, 6.2, 7.4), (2.9, 6.2, 7.4)]))
fillet4.Radius = 0.3

doc.recompute()
